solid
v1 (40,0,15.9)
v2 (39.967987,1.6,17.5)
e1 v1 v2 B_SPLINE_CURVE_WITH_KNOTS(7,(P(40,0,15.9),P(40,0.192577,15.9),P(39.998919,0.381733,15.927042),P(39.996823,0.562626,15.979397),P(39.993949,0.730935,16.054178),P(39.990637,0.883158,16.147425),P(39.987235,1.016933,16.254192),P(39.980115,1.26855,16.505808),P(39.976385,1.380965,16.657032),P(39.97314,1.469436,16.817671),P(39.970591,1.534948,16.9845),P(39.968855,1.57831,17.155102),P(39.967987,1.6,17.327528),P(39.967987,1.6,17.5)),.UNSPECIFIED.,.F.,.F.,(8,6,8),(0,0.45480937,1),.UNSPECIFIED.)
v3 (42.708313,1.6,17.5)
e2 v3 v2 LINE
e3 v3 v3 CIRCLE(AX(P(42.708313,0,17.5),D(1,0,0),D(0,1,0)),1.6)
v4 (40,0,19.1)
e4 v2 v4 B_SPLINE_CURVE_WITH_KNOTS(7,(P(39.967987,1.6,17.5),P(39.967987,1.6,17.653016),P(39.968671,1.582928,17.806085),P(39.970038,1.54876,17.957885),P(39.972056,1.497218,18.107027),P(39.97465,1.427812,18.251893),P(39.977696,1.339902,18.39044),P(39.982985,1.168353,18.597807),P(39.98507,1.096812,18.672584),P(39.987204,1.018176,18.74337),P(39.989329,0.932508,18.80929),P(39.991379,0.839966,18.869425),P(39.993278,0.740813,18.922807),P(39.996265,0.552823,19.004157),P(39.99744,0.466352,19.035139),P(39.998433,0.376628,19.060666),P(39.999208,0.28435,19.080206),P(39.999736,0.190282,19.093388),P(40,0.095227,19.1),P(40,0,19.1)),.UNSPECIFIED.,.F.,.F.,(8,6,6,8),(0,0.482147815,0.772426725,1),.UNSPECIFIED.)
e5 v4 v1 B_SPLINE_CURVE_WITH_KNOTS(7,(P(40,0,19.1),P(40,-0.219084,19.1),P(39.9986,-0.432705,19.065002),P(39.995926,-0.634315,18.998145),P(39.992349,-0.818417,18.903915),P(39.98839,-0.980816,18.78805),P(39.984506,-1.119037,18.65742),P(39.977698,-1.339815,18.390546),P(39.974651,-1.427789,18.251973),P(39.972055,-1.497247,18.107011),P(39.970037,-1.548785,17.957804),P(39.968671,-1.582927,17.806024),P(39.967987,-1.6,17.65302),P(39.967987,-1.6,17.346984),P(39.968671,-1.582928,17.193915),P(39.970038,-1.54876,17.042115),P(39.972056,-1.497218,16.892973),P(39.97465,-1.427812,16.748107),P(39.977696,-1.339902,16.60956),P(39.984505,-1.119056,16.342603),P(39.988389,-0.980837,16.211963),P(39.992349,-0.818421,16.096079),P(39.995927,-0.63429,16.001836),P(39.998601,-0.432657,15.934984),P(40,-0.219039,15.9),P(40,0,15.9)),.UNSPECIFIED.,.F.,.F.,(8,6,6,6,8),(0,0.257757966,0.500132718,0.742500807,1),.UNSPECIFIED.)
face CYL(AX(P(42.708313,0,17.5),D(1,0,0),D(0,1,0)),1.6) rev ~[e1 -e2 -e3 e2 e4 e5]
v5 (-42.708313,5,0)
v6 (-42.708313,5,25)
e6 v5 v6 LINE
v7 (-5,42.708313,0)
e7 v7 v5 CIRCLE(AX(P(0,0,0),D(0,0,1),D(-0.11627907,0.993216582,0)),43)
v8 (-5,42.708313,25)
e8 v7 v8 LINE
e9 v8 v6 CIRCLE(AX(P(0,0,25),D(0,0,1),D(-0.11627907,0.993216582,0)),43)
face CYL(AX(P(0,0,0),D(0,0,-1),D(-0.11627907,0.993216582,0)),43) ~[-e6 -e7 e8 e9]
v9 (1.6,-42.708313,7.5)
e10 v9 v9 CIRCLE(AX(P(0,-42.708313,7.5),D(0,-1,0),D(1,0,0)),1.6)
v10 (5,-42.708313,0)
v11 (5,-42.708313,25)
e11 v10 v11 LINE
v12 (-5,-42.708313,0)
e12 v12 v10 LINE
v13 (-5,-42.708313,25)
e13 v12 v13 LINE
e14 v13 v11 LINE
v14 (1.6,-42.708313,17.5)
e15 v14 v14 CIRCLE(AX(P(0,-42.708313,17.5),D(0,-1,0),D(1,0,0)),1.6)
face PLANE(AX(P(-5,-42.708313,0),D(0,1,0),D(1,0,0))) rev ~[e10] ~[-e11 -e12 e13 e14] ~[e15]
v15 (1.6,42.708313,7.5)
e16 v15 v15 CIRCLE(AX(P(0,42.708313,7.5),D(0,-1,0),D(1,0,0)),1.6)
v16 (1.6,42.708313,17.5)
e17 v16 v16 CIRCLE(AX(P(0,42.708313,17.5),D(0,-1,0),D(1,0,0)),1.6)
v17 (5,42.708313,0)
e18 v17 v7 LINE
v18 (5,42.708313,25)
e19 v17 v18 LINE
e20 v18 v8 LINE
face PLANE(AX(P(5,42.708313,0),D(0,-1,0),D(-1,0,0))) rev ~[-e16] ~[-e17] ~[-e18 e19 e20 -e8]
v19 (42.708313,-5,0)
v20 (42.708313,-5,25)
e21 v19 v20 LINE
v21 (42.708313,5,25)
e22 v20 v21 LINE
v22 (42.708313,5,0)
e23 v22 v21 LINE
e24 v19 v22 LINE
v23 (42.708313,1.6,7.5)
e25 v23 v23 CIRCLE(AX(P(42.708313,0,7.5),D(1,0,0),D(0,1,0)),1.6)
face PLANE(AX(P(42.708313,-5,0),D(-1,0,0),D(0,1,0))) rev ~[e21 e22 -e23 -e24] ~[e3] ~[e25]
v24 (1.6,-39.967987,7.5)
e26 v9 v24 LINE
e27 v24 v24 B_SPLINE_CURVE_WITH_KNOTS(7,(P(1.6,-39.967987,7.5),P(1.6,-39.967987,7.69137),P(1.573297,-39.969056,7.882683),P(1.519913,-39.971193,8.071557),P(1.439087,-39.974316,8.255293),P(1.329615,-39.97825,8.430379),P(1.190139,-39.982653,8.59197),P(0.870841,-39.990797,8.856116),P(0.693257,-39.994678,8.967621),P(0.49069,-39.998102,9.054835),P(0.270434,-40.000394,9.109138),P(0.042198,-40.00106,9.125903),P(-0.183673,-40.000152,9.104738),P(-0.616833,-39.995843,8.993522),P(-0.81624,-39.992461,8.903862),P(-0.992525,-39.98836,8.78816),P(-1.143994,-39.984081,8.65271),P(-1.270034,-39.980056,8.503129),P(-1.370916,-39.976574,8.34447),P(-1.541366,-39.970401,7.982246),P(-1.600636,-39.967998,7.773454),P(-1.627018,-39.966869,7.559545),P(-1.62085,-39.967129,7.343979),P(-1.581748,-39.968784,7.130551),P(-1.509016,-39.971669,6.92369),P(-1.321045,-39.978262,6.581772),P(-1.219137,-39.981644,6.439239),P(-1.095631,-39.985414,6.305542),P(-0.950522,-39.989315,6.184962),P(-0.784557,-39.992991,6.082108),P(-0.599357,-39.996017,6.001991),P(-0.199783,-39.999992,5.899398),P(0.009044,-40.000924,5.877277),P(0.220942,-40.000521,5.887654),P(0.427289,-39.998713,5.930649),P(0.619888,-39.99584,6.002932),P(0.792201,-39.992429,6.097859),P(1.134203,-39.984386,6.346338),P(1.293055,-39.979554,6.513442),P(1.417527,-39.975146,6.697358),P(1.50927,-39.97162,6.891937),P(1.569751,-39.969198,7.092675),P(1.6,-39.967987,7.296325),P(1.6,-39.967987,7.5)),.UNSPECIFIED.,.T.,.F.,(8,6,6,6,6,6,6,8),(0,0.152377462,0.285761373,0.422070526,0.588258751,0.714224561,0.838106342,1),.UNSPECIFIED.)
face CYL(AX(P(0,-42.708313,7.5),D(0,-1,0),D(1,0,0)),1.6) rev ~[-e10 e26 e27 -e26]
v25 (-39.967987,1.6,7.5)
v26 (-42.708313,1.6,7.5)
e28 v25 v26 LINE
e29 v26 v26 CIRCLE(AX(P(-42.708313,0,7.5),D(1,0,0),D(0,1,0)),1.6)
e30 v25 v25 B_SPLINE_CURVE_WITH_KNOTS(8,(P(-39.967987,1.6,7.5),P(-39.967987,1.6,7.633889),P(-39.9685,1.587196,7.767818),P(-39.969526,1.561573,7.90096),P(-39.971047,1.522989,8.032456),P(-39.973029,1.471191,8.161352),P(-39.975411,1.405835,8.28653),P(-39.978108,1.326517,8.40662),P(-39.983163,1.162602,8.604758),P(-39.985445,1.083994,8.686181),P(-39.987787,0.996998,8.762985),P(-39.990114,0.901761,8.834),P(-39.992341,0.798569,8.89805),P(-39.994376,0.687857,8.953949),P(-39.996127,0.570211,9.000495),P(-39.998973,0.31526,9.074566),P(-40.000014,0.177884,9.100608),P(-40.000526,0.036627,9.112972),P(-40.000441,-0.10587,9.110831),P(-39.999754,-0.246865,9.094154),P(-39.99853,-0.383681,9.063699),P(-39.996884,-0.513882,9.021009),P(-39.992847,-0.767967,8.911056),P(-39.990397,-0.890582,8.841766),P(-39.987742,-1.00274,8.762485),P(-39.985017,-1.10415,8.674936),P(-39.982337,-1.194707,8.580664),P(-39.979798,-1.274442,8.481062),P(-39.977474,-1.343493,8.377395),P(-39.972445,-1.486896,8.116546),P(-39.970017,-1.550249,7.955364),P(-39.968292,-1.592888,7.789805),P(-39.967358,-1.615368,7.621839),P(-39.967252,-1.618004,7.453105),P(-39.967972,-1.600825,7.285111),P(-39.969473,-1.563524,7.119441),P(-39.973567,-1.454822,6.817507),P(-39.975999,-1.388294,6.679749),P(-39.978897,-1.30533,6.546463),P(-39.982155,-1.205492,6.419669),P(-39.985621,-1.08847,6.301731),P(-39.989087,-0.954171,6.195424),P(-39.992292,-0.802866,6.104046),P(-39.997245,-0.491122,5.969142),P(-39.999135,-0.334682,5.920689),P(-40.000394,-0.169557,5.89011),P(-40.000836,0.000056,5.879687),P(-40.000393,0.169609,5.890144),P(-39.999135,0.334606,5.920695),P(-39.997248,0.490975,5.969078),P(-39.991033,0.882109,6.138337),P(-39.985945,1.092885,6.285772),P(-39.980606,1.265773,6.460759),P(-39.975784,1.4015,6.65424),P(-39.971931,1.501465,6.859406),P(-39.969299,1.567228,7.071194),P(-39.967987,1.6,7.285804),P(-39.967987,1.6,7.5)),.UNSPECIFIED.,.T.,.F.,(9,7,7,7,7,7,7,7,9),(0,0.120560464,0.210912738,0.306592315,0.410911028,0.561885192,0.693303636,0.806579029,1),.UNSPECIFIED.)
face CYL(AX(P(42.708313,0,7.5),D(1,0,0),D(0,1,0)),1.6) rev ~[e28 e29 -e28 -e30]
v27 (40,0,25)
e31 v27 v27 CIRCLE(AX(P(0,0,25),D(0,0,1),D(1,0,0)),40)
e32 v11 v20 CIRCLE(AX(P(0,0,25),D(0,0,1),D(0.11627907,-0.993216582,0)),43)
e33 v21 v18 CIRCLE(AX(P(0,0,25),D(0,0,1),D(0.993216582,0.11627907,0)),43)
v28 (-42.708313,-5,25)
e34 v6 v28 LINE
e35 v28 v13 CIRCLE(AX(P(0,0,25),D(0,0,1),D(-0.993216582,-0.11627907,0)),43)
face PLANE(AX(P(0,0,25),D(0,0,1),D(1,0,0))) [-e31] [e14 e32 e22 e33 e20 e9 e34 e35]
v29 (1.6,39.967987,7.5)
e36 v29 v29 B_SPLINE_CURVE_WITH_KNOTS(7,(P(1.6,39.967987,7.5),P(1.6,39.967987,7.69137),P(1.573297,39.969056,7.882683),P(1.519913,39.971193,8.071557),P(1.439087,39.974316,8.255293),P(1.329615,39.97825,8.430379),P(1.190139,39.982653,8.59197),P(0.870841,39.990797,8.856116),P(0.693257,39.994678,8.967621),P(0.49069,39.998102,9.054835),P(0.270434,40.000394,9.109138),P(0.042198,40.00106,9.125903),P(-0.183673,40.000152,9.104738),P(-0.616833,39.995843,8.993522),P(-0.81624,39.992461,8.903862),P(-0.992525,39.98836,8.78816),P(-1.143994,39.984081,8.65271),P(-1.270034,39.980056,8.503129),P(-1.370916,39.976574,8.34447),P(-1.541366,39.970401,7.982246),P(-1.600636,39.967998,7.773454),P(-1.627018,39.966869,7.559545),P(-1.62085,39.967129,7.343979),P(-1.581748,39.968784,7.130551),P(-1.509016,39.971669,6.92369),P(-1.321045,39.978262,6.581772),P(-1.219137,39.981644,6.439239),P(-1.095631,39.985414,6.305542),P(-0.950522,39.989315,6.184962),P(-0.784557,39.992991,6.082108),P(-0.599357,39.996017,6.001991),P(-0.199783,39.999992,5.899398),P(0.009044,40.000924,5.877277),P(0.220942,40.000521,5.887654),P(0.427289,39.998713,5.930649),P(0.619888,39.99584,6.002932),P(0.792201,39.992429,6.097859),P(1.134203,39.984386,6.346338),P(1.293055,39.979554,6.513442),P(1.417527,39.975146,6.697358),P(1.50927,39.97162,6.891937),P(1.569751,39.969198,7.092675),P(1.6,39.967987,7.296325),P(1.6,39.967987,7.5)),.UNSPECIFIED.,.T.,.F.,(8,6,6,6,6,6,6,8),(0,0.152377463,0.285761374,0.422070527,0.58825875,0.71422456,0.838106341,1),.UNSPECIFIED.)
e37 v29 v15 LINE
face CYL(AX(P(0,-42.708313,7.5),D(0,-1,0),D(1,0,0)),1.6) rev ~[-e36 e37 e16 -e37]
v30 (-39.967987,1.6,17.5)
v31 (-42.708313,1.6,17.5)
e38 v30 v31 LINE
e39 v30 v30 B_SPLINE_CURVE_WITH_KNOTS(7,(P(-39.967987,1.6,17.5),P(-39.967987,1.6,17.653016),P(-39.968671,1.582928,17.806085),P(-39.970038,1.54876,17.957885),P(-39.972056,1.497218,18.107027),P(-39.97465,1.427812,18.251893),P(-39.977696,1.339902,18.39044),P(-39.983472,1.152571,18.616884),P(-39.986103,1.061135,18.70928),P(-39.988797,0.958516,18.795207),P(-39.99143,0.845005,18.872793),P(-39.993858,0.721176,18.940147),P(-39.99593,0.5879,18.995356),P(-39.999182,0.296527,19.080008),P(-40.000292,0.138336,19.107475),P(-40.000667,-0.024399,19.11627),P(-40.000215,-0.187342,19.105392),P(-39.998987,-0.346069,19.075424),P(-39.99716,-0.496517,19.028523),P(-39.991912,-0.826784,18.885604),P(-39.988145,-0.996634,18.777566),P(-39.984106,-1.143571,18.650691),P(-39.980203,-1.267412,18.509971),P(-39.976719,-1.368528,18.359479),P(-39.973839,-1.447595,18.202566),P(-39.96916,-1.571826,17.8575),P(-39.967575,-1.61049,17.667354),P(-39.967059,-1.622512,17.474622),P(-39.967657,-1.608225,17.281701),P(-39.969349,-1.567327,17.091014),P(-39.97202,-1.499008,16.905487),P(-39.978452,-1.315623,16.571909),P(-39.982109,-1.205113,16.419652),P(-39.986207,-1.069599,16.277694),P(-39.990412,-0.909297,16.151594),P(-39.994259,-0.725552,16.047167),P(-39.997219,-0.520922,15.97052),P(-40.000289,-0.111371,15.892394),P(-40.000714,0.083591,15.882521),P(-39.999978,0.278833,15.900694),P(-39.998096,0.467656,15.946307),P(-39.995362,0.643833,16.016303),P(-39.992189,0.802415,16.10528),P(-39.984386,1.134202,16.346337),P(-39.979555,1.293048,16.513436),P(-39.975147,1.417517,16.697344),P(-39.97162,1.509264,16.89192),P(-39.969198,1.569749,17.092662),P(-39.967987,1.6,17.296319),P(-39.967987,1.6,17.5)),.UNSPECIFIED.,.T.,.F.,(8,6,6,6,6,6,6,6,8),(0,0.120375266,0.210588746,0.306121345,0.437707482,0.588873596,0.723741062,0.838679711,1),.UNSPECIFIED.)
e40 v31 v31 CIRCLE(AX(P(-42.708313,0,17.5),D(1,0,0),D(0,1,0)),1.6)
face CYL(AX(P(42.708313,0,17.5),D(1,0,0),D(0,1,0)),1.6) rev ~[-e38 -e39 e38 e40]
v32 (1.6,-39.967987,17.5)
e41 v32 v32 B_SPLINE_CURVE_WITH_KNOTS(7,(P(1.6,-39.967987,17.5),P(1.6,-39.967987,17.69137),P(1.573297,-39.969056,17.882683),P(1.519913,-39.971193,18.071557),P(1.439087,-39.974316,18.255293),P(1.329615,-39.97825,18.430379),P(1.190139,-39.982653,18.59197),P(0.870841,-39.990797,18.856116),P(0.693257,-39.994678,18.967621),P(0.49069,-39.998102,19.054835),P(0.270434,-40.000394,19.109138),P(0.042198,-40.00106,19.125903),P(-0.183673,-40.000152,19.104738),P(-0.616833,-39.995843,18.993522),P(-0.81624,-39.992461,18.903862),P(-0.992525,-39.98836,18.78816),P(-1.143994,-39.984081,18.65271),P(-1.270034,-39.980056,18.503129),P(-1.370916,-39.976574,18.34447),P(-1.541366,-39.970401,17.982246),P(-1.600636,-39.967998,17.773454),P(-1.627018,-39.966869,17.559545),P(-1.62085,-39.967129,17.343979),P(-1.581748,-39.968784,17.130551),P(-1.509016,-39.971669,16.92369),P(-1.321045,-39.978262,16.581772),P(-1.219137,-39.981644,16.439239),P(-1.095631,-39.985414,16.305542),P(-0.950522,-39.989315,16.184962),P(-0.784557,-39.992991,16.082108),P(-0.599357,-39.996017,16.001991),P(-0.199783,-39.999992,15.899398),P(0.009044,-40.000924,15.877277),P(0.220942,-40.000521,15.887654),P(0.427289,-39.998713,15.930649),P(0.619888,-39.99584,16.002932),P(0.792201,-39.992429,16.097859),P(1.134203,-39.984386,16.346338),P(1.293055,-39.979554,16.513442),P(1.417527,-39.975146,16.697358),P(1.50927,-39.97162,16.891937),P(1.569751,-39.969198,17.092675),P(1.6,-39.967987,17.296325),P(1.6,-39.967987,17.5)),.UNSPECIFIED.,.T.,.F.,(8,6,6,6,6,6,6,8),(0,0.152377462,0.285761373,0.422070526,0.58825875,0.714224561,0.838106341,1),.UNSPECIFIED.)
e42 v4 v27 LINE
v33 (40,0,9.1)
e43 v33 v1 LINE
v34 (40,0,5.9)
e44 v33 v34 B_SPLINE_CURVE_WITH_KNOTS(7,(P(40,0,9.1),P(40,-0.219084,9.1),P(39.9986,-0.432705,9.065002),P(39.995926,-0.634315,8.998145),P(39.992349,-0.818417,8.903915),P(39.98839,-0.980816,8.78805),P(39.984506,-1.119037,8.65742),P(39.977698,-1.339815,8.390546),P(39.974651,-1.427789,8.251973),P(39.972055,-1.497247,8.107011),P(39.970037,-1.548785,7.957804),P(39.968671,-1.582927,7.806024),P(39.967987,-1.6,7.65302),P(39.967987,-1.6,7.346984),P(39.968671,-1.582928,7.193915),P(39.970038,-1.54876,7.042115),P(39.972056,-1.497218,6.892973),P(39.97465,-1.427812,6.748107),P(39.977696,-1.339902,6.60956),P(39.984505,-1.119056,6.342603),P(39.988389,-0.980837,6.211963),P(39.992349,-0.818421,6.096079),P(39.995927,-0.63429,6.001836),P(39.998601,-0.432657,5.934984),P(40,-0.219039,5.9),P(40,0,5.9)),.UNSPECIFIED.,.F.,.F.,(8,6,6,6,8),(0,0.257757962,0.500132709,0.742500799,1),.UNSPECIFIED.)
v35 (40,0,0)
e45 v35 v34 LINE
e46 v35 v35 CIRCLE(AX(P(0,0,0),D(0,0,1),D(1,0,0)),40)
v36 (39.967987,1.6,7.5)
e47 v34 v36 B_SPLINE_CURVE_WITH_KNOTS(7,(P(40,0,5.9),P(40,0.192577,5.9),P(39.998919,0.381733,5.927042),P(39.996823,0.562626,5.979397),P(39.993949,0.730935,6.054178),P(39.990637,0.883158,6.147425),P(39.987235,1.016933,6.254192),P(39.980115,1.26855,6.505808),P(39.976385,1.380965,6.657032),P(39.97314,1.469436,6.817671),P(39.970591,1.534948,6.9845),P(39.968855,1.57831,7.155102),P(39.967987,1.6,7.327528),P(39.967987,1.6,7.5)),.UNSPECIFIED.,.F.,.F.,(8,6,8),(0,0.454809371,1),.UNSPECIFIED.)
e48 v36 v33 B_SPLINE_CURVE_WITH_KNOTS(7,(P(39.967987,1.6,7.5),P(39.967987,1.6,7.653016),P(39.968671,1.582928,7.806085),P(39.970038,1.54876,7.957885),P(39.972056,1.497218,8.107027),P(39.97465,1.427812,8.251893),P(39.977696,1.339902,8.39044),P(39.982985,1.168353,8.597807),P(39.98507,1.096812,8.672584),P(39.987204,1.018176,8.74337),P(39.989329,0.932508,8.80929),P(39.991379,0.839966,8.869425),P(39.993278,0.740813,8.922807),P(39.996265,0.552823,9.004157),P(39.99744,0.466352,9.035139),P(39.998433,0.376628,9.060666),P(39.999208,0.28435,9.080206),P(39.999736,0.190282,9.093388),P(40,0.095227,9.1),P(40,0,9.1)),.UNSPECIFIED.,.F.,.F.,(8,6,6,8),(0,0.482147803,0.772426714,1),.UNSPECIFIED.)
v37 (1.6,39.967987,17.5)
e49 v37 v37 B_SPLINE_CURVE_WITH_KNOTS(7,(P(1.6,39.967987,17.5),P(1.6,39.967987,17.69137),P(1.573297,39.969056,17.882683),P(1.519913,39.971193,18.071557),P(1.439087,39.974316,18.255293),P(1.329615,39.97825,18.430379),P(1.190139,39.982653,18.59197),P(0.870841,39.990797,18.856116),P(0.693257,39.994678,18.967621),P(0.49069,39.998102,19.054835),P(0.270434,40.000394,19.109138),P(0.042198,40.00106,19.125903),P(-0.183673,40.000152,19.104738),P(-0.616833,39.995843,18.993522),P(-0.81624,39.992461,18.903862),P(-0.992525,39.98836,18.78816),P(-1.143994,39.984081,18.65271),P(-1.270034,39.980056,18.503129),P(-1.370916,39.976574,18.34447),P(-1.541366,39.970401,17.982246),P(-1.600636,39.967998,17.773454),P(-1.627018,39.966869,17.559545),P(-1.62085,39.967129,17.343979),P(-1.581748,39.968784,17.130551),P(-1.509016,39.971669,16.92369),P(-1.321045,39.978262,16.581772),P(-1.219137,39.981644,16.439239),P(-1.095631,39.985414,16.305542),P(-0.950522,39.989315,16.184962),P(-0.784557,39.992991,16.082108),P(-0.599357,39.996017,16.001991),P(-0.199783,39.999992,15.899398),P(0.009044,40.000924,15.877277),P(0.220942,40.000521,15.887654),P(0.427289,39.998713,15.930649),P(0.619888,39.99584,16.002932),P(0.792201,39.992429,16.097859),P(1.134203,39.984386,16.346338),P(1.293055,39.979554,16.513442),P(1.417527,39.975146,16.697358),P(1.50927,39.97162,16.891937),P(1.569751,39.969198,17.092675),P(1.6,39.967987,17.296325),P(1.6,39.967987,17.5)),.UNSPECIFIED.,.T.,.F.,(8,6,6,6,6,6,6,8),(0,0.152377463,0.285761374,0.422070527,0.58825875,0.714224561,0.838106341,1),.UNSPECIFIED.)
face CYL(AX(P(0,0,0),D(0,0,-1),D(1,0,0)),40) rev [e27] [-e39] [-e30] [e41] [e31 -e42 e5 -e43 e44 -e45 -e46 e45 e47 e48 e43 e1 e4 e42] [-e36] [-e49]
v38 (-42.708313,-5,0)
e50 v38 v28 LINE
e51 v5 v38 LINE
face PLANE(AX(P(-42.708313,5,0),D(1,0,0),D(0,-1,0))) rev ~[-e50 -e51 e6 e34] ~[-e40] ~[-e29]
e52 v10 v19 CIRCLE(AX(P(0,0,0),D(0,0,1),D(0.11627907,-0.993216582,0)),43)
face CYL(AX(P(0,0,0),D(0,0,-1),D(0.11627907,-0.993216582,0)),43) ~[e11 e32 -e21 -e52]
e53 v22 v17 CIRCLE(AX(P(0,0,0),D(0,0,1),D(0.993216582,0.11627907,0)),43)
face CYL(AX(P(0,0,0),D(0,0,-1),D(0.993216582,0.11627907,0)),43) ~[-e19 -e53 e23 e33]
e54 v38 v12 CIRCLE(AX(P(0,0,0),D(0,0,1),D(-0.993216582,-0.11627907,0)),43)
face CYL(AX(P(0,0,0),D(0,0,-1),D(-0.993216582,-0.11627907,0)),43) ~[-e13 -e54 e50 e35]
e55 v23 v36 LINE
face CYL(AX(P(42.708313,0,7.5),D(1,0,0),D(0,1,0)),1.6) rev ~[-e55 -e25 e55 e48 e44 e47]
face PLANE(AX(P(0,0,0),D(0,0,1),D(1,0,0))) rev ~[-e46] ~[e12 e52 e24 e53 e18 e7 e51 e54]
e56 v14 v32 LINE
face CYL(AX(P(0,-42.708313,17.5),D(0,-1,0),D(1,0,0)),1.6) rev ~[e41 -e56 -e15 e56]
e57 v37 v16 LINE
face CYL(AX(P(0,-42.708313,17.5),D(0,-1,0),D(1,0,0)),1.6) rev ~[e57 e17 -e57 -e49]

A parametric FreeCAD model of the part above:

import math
import FreeCAD as App
import Part
import Sketcher

doc = App.newDocument("Part")
body = doc.addObject("PartDesign::Body", "Body")

sketch1 = body.newObject("Sketcher::SketchObject", "Sketch")
sketch1.AttachmentSupport = (doc.getObject("XY_Plane"), [""])
sketch1.MapMode = "FlatFace"
sketch1.addGeometry(Part.LineSegment(App.Vector(43, -5, 0), App.Vector(43, 5, 0)), False)
sketch1.addGeometry(Part.ArcOfCircle(Part.Circle(App.Vector(0, 0, 0), App.Vector(0, 0, 1), 43), math.radians(7), math.radians(83)), False)
sketch1.addGeometry(Part.LineSegment(App.Vector(5, 43, 0), App.Vector(-5, 43, 0)), False)
sketch1.addGeometry(Part.ArcOfCircle(Part.Circle(App.Vector(0, 0, 0), App.Vector(0, 0, 1), 43), math.radians(97), math.radians(173)), False)
sketch1.addGeometry(Part.LineSegment(App.Vector(-43, 5, 0), App.Vector(-43, -5, 0)), False)
sketch1.addGeometry(Part.ArcOfCircle(Part.Circle(App.Vector(0, 0, 0), App.Vector(0, 0, 1), 43), math.radians(-173), math.radians(-97)), False)
sketch1.addGeometry(Part.LineSegment(App.Vector(-5, -43, 0), App.Vector(5, -43, 0)), False)
sketch1.addGeometry(Part.ArcOfCircle(Part.Circle(App.Vector(0, 0, 0), App.Vector(0, 0, 1), 43), math.radians(-83), math.radians(-7)), False)
sketch1.addGeometry(Part.Circle(App.Vector(0, 0, 0), App.Vector(0, 0, 1), 40), False)
sketch1.addConstraint(Sketcher.Constraint("Coincident", 0, 2, 1, 1))
sketch1.addConstraint(Sketcher.Constraint("Coincident", 1, 2, 2, 1))
sketch1.addConstraint(Sketcher.Constraint("Coincident", 2, 2, 3, 1))
sketch1.addConstraint(Sketcher.Constraint("Coincident", 3, 2, 4, 1))
sketch1.addConstraint(Sketcher.Constraint("Coincident", 4, 2, 5, 1))
sketch1.addConstraint(Sketcher.Constraint("Coincident", 5, 2, 6, 1))
sketch1.addConstraint(Sketcher.Constraint("Coincident", 6, 2, 7, 1))
sketch1.addConstraint(Sketcher.Constraint("Coincident", 7, 2, 0, 1))
sketch1.addConstraint(Sketcher.Constraint("Vertical", 0))
sketch1.addConstraint(Sketcher.Constraint("Horizontal", 2))
sketch1.addConstraint(Sketcher.Constraint("Vertical", 4))
sketch1.addConstraint(Sketcher.Constraint("Horizontal", 6))
sketch1.addConstraint(Sketcher.Constraint("Coincident", 1, 3, -1, 1))
sketch1.addConstraint(Sketcher.Constraint("Coincident", 3, 3, -1, 1))
sketch1.addConstraint(Sketcher.Constraint("Coincident", 5, 3, -1, 1))
sketch1.addConstraint(Sketcher.Constraint("Coincident", 7, 3, -1, 1))
sketch1.addConstraint(Sketcher.Constraint("Coincident", 8, 3, -1, 1))
sketch1.addConstraint(Sketcher.Constraint("Equal", 1, 3))
sketch1.addConstraint(Sketcher.Constraint("Equal", 3, 5))
sketch1.addConstraint(Sketcher.Constraint("Equal", 5, 7))
sketch1.addConstraint(Sketcher.Constraint("Horizontal", 0, 2, 3, 2))
sketch1.addConstraint(Sketcher.Constraint("Vertical", 2, 2, 5, 2))
sketch1.addConstraint(Sketcher.Constraint("Equal", 6, 0))
sketch1.addConstraint(Sketcher.Constraint("Diameter", 8, 80.0))
sketch1.addConstraint(Sketcher.Constraint("Radius", 1, 43.0))
sketch1.addConstraint(Sketcher.Constraint("DistanceX", 2, 2, 2, 1, 10.0))
pad1 = body.newObject("PartDesign::Pad", "Pad")
pad1.Profile = sketch1
pad1.Length = 25

sketch2 = body.newObject("Sketcher::SketchObject", "Sketch001")
sketch2.AttachmentSupport = (doc.getObject("YZ_Plane"), [""])
sketch2.MapMode = "FlatFace"
sketch2.AttachmentOffset = App.Placement(App.Vector(0, 0, 42.708313), App.Rotation())
sketch2.addGeometry(Part.Circle(App.Vector(0, 17.5, 0), App.Vector(0, 0, 1), 1.6), False)
sketch2.addGeometry(Part.Circle(App.Vector(0, 7.5, 0), App.Vector(0, 0, 1), 1.6), False)
sketch2.addConstraint(Sketcher.Constraint("Equal", 0, 1))
sketch2.addConstraint(Sketcher.Constraint("PointOnObject", 0, 3, -2))
sketch2.addConstraint(Sketcher.Constraint("PointOnObject", 1, 3, -2))
sketch2.addConstraint(Sketcher.Constraint("Diameter", 0, 3.2))
sketch2.addConstraint(Sketcher.Constraint("DistanceY", 1, 3, 0, 3, 10.0))
sketch2.addConstraint(Sketcher.Constraint("DistanceY", -1, 1, 0, 3, 17.5))
pocket1 = body.newObject("PartDesign::Pocket", "Pocket")
pocket1.Profile = sketch2
pocket1.Type = "ThroughAll"

sketch3 = body.newObject("Sketcher::SketchObject", "Sketch002")
sketch3.AttachmentSupport = (doc.getObject("XZ_Plane"), [""])
sketch3.MapMode = "FlatFace"
sketch3.AttachmentOffset = App.Placement(App.Vector(0, 0, 42.708313), App.Rotation())
sketch3.addGeometry(Part.Circle(App.Vector(0, 17.5, 0), App.Vector(0, 0, 1), 1.6), False)
sketch3.addGeometry(Part.Circle(App.Vector(0, 7.5, 0), App.Vector(0, 0, 1), 1.6), False)
sketch3.addConstraint(Sketcher.Constraint("Equal", 0, 1))
sketch3.addConstraint(Sketcher.Constraint("PointOnObject", 0, 3, -2))
sketch3.addConstraint(Sketcher.Constraint("PointOnObject", 1, 3, -2))
sketch3.addConstraint(Sketcher.Constraint("Diameter", 0, 3.2))
sketch3.addConstraint(Sketcher.Constraint("DistanceY", 1, 3, 0, 3, 10.0))
sketch3.addConstraint(Sketcher.Constraint("DistanceY", -1, 1, 0, 3, 17.5))
pocket2 = body.newObject("PartDesign::Pocket", "Pocket001")
pocket2.Profile = sketch3
pocket2.Type = "ThroughAll"

doc.recompute()
